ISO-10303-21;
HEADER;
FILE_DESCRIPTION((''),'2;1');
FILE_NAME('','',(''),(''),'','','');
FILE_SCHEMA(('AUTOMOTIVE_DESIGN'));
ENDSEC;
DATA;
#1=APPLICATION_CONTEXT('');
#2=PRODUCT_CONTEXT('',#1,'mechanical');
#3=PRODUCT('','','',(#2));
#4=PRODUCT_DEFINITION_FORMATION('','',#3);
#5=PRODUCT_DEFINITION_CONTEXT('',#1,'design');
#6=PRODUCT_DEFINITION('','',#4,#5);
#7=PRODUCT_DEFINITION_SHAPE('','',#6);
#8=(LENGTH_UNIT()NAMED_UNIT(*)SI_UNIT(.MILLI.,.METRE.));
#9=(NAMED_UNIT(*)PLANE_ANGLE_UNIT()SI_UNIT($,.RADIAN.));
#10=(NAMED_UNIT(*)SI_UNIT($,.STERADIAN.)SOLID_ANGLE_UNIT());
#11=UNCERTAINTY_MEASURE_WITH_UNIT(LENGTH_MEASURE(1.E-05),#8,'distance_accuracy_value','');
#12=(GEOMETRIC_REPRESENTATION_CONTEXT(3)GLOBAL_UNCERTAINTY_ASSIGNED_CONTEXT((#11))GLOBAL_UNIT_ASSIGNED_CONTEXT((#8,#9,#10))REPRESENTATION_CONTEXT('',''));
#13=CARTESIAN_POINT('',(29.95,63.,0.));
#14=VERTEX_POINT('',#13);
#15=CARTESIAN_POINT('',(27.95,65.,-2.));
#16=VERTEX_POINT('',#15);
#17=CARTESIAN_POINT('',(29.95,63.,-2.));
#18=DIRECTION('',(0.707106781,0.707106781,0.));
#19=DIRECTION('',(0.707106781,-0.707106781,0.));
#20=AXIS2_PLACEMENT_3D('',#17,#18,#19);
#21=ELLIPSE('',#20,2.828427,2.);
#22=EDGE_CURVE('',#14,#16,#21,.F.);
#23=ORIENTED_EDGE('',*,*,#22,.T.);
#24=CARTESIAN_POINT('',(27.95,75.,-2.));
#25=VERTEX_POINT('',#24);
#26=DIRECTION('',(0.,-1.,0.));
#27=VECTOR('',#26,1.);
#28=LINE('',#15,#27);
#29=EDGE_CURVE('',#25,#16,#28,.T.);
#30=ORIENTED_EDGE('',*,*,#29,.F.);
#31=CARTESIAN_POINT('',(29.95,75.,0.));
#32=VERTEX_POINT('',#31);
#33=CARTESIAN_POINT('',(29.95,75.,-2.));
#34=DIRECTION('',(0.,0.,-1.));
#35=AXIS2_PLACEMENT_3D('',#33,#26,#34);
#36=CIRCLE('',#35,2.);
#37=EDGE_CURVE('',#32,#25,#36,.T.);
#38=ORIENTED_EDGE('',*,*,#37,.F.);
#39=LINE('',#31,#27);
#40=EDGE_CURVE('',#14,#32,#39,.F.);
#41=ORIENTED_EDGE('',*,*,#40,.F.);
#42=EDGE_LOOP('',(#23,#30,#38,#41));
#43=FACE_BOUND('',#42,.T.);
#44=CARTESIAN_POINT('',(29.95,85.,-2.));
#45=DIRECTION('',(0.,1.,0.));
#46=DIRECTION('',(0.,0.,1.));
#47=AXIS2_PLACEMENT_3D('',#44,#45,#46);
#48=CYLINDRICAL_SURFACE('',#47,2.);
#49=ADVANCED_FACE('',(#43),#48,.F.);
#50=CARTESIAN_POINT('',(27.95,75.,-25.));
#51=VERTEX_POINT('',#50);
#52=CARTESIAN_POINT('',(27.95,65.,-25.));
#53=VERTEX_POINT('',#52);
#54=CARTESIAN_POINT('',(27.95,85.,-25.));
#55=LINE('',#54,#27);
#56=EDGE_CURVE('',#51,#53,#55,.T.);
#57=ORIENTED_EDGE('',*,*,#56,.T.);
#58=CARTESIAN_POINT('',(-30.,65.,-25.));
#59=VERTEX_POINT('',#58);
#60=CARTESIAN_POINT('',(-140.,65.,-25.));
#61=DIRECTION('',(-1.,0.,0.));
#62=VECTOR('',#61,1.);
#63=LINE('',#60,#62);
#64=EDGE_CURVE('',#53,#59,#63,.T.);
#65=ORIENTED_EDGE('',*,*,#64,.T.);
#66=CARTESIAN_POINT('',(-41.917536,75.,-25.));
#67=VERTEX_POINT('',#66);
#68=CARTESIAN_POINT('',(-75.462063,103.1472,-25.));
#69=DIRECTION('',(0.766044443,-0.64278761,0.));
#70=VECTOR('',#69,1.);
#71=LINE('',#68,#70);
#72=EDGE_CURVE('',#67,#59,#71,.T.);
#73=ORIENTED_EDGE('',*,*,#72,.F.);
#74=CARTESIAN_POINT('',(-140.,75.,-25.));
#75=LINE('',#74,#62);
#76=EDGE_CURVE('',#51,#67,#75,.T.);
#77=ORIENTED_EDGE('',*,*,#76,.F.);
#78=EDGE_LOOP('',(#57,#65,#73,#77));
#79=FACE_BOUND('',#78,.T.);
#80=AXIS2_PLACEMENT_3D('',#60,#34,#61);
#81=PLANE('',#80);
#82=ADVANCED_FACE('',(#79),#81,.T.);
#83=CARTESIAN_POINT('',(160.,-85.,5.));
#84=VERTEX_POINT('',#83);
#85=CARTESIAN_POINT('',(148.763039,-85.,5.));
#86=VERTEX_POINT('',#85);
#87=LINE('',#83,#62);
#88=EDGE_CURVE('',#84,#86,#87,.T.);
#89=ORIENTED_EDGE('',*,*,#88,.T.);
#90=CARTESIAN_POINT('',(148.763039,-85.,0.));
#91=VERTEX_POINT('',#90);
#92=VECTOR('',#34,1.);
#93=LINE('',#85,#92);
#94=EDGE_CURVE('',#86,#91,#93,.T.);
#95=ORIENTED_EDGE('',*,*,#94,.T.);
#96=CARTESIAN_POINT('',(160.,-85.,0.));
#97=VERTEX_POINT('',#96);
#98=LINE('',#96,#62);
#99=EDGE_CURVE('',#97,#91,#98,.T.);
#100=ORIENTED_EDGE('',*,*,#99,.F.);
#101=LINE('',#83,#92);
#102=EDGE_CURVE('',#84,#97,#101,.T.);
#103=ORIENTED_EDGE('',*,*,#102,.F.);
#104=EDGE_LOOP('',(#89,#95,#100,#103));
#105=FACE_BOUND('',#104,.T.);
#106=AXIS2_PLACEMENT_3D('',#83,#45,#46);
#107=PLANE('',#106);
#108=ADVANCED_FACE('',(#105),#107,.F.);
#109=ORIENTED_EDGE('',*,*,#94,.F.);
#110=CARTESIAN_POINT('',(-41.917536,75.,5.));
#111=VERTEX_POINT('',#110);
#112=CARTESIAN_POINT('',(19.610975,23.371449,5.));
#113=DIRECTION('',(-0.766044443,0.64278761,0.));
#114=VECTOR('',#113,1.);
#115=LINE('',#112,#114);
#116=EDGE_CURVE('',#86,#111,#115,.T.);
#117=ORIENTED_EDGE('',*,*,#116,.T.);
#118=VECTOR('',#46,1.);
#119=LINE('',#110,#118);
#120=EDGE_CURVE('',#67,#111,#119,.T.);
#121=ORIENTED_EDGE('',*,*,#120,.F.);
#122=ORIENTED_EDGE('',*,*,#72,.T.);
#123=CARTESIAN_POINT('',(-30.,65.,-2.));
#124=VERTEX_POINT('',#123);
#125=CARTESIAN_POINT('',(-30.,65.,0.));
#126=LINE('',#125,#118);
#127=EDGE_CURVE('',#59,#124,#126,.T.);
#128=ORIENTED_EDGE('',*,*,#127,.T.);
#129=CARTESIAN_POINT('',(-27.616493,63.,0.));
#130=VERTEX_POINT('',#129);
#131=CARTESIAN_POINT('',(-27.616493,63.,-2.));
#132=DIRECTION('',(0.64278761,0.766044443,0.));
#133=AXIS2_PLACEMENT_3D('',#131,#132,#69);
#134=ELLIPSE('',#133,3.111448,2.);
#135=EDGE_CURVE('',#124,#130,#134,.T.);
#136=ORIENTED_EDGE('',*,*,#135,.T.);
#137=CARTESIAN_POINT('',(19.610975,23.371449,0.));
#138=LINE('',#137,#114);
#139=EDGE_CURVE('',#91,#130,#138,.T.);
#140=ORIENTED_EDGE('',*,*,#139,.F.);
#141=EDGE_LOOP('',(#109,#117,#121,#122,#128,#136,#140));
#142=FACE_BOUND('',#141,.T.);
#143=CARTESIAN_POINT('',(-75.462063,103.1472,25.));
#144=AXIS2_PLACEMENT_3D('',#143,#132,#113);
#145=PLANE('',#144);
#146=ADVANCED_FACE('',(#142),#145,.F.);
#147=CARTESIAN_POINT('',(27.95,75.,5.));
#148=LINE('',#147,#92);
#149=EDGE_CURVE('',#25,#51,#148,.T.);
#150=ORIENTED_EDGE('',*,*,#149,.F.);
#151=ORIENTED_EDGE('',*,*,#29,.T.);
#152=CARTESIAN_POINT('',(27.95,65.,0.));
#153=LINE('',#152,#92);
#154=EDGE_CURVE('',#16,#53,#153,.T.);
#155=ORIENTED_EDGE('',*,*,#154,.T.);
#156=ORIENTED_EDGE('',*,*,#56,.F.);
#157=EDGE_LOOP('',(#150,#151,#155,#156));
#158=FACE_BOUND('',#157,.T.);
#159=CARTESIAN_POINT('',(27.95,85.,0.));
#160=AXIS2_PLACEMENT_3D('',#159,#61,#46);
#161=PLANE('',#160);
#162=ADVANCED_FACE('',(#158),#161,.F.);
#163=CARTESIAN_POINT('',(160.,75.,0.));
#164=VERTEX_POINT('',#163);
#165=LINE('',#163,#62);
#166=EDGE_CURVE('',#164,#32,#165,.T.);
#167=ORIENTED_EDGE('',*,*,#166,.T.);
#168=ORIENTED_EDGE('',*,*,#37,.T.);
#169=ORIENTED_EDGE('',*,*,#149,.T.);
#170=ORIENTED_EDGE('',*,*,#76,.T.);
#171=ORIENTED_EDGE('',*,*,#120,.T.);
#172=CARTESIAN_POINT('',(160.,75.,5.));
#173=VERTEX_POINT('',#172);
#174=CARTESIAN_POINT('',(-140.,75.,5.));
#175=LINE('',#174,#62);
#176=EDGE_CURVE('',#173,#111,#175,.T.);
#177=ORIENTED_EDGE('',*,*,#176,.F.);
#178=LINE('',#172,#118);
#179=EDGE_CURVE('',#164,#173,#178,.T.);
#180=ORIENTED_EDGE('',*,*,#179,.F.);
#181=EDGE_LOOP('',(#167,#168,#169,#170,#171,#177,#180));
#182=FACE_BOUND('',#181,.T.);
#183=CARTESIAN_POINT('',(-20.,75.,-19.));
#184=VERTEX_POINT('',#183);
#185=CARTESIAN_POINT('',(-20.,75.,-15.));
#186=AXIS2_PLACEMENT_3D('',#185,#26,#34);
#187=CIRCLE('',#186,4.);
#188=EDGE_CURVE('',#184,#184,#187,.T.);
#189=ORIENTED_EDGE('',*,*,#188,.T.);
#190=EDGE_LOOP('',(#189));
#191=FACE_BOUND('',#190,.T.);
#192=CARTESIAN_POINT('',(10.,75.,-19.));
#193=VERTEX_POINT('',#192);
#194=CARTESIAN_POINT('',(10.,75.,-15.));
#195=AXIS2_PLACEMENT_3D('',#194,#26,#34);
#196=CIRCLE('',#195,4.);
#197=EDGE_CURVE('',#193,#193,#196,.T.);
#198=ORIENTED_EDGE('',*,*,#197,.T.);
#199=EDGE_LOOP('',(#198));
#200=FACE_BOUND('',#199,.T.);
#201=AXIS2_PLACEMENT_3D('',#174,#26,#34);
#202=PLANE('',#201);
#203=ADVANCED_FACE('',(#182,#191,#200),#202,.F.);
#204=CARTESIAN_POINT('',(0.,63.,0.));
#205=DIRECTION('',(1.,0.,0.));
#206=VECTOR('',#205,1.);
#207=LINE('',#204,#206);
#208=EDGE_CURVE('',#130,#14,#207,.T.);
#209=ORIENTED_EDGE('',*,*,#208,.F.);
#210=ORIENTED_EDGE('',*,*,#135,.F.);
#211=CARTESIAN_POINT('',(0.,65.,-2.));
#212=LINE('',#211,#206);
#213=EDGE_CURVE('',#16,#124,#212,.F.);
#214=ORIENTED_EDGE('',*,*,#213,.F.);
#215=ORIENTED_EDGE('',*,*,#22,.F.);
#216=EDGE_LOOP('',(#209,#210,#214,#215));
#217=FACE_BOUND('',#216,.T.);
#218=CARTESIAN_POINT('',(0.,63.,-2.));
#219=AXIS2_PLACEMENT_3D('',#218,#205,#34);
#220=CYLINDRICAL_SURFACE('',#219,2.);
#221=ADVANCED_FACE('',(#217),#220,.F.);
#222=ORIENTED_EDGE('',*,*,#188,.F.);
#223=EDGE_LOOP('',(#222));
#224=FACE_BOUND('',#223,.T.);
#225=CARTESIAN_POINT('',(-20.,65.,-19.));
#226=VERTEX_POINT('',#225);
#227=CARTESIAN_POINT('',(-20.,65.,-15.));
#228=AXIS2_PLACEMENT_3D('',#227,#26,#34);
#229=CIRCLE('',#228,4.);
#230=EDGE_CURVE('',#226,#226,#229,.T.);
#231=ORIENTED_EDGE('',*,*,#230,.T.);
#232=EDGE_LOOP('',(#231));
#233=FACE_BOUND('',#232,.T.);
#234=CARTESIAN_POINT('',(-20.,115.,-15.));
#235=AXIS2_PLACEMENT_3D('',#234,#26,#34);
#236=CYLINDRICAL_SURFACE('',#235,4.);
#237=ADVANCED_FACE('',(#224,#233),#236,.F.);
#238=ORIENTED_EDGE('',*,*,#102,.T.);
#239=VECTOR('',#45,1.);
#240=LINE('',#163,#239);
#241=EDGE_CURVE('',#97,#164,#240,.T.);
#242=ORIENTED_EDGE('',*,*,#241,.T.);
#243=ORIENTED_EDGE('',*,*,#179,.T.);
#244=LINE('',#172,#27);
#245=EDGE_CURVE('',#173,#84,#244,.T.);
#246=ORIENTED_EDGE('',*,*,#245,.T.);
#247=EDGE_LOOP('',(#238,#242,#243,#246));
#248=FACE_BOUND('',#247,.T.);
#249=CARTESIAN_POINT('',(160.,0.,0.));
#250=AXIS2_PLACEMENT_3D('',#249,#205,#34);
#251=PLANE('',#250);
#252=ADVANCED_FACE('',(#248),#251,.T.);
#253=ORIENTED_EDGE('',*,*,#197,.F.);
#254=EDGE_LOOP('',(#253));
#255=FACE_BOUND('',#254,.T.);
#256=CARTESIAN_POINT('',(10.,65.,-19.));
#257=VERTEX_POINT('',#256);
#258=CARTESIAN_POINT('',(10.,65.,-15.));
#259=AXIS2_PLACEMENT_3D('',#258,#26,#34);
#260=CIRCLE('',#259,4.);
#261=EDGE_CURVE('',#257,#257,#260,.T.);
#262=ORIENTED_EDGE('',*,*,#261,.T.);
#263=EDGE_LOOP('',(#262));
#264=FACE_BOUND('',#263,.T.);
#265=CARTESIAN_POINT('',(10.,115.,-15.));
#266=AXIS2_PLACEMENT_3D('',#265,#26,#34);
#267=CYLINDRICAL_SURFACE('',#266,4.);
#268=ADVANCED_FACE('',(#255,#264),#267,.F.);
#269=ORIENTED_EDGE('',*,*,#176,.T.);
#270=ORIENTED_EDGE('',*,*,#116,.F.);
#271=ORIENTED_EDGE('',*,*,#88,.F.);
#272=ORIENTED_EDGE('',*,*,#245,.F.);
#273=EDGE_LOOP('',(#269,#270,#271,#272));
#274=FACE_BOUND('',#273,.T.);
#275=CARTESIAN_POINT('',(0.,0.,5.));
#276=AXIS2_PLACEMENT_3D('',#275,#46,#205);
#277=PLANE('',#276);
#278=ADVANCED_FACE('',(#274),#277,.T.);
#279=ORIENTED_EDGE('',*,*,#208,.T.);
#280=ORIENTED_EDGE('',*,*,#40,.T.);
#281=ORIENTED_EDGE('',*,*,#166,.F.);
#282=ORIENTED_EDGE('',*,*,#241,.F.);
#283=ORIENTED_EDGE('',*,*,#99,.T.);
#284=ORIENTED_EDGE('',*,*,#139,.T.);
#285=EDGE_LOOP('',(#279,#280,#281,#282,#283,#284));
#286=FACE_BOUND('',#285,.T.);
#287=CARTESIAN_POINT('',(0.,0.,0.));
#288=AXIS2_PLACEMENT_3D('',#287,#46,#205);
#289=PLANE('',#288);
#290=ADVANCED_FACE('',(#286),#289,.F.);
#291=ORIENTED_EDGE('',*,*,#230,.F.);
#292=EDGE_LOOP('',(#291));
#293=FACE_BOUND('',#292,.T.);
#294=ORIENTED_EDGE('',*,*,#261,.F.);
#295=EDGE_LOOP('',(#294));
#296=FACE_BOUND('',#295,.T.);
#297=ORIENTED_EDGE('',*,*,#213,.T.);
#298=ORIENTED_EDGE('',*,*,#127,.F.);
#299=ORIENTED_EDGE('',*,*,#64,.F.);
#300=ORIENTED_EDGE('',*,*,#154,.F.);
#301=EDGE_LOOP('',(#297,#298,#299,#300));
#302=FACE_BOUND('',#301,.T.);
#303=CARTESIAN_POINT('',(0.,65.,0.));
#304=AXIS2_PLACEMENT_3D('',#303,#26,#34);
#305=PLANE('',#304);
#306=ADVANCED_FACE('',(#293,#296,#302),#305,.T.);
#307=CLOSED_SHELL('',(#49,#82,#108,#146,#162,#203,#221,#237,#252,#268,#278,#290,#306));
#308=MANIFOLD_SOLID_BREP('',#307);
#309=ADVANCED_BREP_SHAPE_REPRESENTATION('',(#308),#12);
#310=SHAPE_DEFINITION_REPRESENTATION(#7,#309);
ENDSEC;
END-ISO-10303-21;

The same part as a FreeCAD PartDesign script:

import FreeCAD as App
import Part
import Sketcher
Q = App.Units.Quantity


def edges_at(feature, points):
    """Names of the edges that pass closest to the given points."""
    edges = feature.Shape.Edges
    near = lambda p: min(range(len(edges)), key=lambda i: edges[i].distToShape(Part.Vertex(*p))[0])
    return sorted({f"Edge{near(p) + 1}" for p in points})


def add_polygon(sketch, points):
    """Adds a closed chain of lines whose ends are joined by coincident constraints."""
    first, n = sketch.GeometryCount, len(points)
    for a, b in zip(points, points[1:] + points[:1]):
        sketch.addGeometry(Part.LineSegment(App.Vector(*a, 0), App.Vector(*b, 0)), False)
    for i in range(n):
        sketch.addConstraint(Sketcher.Constraint("Coincident", first + i, 2, first + (i + 1) % n, 1))

doc = App.newDocument("Part")
params = doc.addObject("Spreadsheet::Sheet", "Params")
for row, (alias, value) in enumerate([
    ("sketch1_width", "280 mm"),
    ("sketch1_height", "150 mm"),
    ("pad1_length", "5 mm"),
    ("sketch2_width", "280 mm"),
    ("sketch2_height", "25 mm"),
    ("pad2_length", "10 mm"),
    ("pocket1_length", "50 mm"),
    ("sketch4_diameter", "8 mm"),
    ("pocket2_length", "50 mm"),
    ("sketch5_width", "160 mm"),
    ("sketch5_height", "5 mm"),
    ("pad3_length", "20 mm"),
    ("pad4_length", "5 mm"),
    ("pocket3_length", "20 mm"),
    ("sketch8_height", "25 mm"),
    ("sketch8_width", "112.05 mm"),
    ("pocket4_length", "20 mm"),
    ("fillet_radius", "2 mm"),
], start=1):
    params.set(f"A{row}", alias)
    params.set(f"B{row}", "=" + value)
    params.setAlias(f"B{row}", alias)

body = doc.addObject("PartDesign::Body", "Body")

# Sketch on XY plane
sketch1 = body.newObject("Sketcher::SketchObject", "Sketch")
sketch1.AttachmentSupport = (doc.getObject("XY_Plane"), [""])
sketch1.MapMode = "FlatFace"
add_polygon(sketch1, [(-140, 75), (-140, -75), (140, -75), (140, 75)])  # lines 0-3
sketch1.addConstraint(Sketcher.Constraint("Vertical", 0))
sketch1.addConstraint(Sketcher.Constraint("Horizontal", 1))
sketch1.addConstraint(Sketcher.Constraint("Vertical", 2))
sketch1.addConstraint(Sketcher.Constraint("Horizontal", 3))
sketch1.addConstraint(Sketcher.Constraint("Symmetric", 0, 2, 2, 2, -1, 1))
sketch1.addConstraint(Sketcher.Constraint("DistanceX", 1, 1, 1, 2, Q("280 mm")))
sketch1.addConstraint(Sketcher.Constraint("DistanceY", 0, 2, 0, 1, Q("150 mm")))
sketch1.setExpression("Constraints[9]", "Params.sketch1_width")
sketch1.setExpression("Constraints[10]", "Params.sketch1_height")
pad1 = body.newObject("PartDesign::Pad", "Pad")
pad1.Profile = sketch1
pad1.setExpression("Length", "Params.pad1_length")

# Sketch on XZ plane
sketch2 = body.newObject("Sketcher::SketchObject", "Sketch001")
sketch2.AttachmentSupport = (doc.getObject("XZ_Plane"), [""])
sketch2.MapMode = "FlatFace"
sketch2.AttachmentOffset = App.Placement(App.Vector(0, 0, -75), App.Rotation())
add_polygon(sketch2, [(-140, -25), (-140, 0), (140, 0), (140, -25)])  # lines 0-3
sketch2.addConstraint(Sketcher.Constraint("Vertical", 0))
sketch2.addConstraint(Sketcher.Constraint("Horizontal", 1))
sketch2.addConstraint(Sketcher.Constraint("Vertical", 2))
sketch2.addConstraint(Sketcher.Constraint("Horizontal", 3))
sketch2.addConstraint(Sketcher.Constraint("Symmetric", 0, 2, 1, 2, -1, 1))
sketch2.addConstraint(Sketcher.Constraint("DistanceX", 1, 1, 1, 2, Q("280 mm")))
sketch2.addConstraint(Sketcher.Constraint("DistanceY", 0, 1, 0, 2, Q("25 mm")))
sketch2.setExpression("Constraints[9]", "Params.sketch2_width")
sketch2.setExpression("Constraints[10]", "Params.sketch2_height")
pad2 = body.newObject("PartDesign::Pad", "Pad001")
pad2.Profile = sketch2
pad2.setExpression("Length", "Params.pad2_length")

# Sketch on XY plane
sketch3 = body.newObject("Sketcher::SketchObject", "Sketch002")
sketch3.AttachmentSupport = (doc.getObject("XY_Plane"), [""])
sketch3.MapMode = "FlatFace"
add_polygon(sketch3, [(-75, 103), (172, -105), (-179, -109), (-160, 99)])  # lines 0-3
sketch3.addConstraint(Sketcher.Constraint("Angle", 0, Q("-40 deg")))
sketch3.addConstraint(Sketcher.Constraint("DistanceY", -1, 1, 3, 2, Q("103.1472 mm")))
sketch3.addConstraint(Sketcher.Constraint("Distance", 0, Q("323.049032 mm")))
sketch3.addConstraint(Sketcher.Constraint("DistanceX", 1, 2, -1, 1, Q("179.32828 mm")))
sketch3.addConstraint(Sketcher.Constraint("DistanceY", 1, 2, -1, 1, Q("108.521449 mm")))
sketch3.addConstraint(Sketcher.Constraint("DistanceY", 1, 2, 2, 2, Q("207.167762 mm")))
sketch3.addConstraint(Sketcher.Constraint("Distance", 1, Q("351.359093 mm")))
sketch3.addConstraint(Sketcher.Constraint("Distance", 2, Q("208.067615 mm")))
pocket1 = body.newObject("PartDesign::Pocket", "Pocket")
pocket1.Profile = sketch3
pocket1.setExpression("Length", "Params.pocket1_length")
pocket1.Midplane = True

# Sketch on XZ plane
sketch4 = body.newObject("Sketcher::SketchObject", "Sketch003")
sketch4.AttachmentSupport = (doc.getObject("XZ_Plane"), [""])
sketch4.MapMode = "FlatFace"
sketch4.AttachmentOffset = App.Placement(App.Vector(0, 0, -65), App.Rotation())
sketch4.addGeometry(Part.Circle(App.Vector(-20, -15, 0), App.Vector(0, 0, 1), 4), False)
sketch4.addGeometry(Part.Circle(App.Vector(10, -15, 0), App.Vector(0, 0, 1), 4), False)
sketch4.addConstraint(Sketcher.Constraint("Equal", 0, 1))
sketch4.addConstraint(Sketcher.Constraint("Horizontal", 0, 3, 1, 3))
sketch4.addConstraint(Sketcher.Constraint("Diameter", 0, Q("8 mm")))
sketch4.addConstraint(Sketcher.Constraint("DistanceX", 0, 3, -1, 1, Q("20 mm")))
sketch4.addConstraint(Sketcher.Constraint("DistanceY", 0, 3, -1, 1, Q("15 mm")))
sketch4.addConstraint(Sketcher.Constraint("DistanceX", -1, 1, 1, 3, Q("10 mm")))
sketch4.setExpression("Constraints[2]", "Params.sketch4_diameter")
pocket2 = body.newObject("PartDesign::Pocket", "Pocket001")
pocket2.Profile = sketch4
pocket2.setExpression("Length", "Params.pocket2_length")

# Sketch on YZ plane
sketch5 = body.newObject("Sketcher::SketchObject", "Sketch004")
sketch5.AttachmentSupport = (doc.getObject("YZ_Plane"), [""])
sketch5.MapMode = "FlatFace"
sketch5.AttachmentOffset = App.Placement(App.Vector(0, 0, 140), App.Rotation())
add_polygon(sketch5, [(75, 5), (-85, 5), (-85, 0), (75, 0)])  # lines 0-3
sketch5.addConstraint(Sketcher.Constraint("Horizontal", 0))
sketch5.addConstraint(Sketcher.Constraint("Vertical", 1))
sketch5.addConstraint(Sketcher.Constraint("Horizontal", 2))
sketch5.addConstraint(Sketcher.Constraint("Vertical", 3))
sketch5.addConstraint(Sketcher.Constraint("PointOnObject", 1, 2, -1))
sketch5.addConstraint(Sketcher.Constraint("DistanceX", 0, 2, 0, 1, Q("160 mm")))
sketch5.addConstraint(Sketcher.Constraint("DistanceY", 1, 2, 1, 1, Q("5 mm")))
sketch5.addConstraint(Sketcher.Constraint("DistanceX", 0, 2, -1, 1, Q("85 mm")))
sketch5.setExpression("Constraints[9]", "Params.sketch5_width")
sketch5.setExpression("Constraints[10]", "Params.sketch5_height")
pad3 = body.newObject("PartDesign::Pad", "Pad002")
pad3.Profile = sketch5
pad3.setExpression("Length", "Params.pad3_length")

# Sketch on XY plane
sketch6 = body.newObject("Sketcher::SketchObject", "Sketch005")
sketch6.AttachmentSupport = (doc.getObject("XY_Plane"), [""])
sketch6.MapMode = "FlatFace"
sketch6.AttachmentOffset = App.Placement(App.Vector(0, 0, 5), App.Rotation())
add_polygon(sketch6, [(136.8, -75), (140, -77.6), (140, -75)])  # lines 0-2
sketch6.addConstraint(Sketcher.Constraint("Vertical", 1))
sketch6.addConstraint(Sketcher.Constraint("Horizontal", 2))
sketch6.addConstraint(Sketcher.Constraint("Angle", 0, Q("-40 deg")))
sketch6.addConstraint(Sketcher.Constraint("DistanceX", -1, 1, 0, 2, Q("140 mm")))
sketch6.addConstraint(Sketcher.Constraint("DistanceY", 1, 2, -1, 1, Q("75 mm")))
sketch6.addConstraint(Sketcher.Constraint("DistanceX", 2, 2, 2, 1, Q("3.154497 mm")))
pad4 = body.newObject("PartDesign::Pad", "Pad003")
pad4.Profile = sketch6
pad4.setExpression("Length", "Params.pad4_length")
pad4.Reversed = True

# Sketch on XY plane
sketch7 = body.newObject("Sketcher::SketchObject", "Sketch006")
sketch7.AttachmentSupport = (doc.getObject("XY_Plane"), [""])
sketch7.MapMode = "FlatFace"
sketch7.AttachmentOffset = App.Placement(App.Vector(0, 0, 5), App.Rotation())
add_polygon(sketch7, [(154, -89), (140, -78), (130, -90)])  # lines 0-2
sketch7.addConstraint(Sketcher.Constraint("Perpendicular", 0, 1))
sketch7.addConstraint(Sketcher.Constraint("Angle", 0, Q("140 deg")))
sketch7.addConstraint(Sketcher.Constraint("DistanceX", -1, 1, 0, 2, Q("140 mm")))
sketch7.addConstraint(Sketcher.Constraint("Distance", 0, Q("18.088752 mm")))
sketch7.addConstraint(Sketcher.Constraint("Distance", 2, Q("24.14541 mm")))
sketch7.addConstraint(Sketcher.Constraint("DistanceY", 1, 2, -1, 1, Q("89.898809 mm")))
pocket3 = body.newObject("PartDesign::Pocket", "Pocket002")
pocket3.Profile = sketch7
pocket3.setExpression("Length", "Params.pocket3_length")

# Sketch on XZ plane
sketch8 = body.newObject("Sketcher::SketchObject", "Sketch007")
sketch8.AttachmentSupport = (doc.getObject("XZ_Plane"), [""])
sketch8.MapMode = "FlatFace"
sketch8.AttachmentOffset = App.Placement(App.Vector(0, 0, -65), App.Rotation())
add_polygon(sketch8, [(28, 0), (28, -25), (140, -25), (140, 0)])  # lines 0-3
sketch8.addConstraint(Sketcher.Constraint("Vertical", 0))
sketch8.addConstraint(Sketcher.Constraint("Horizontal", 1))
sketch8.addConstraint(Sketcher.Constraint("Vertical", 2))
sketch8.addConstraint(Sketcher.Constraint("Horizontal", 3))
sketch8.addConstraint(Sketcher.Constraint("PointOnObject", 2, 2, -1))
sketch8.addConstraint(Sketcher.Constraint("DistanceY", 0, 2, 0, 1, Q("25 mm")))
sketch8.addConstraint(Sketcher.Constraint("DistanceX", -1, 1, 1, 2, Q("140 mm")))
sketch8.addConstraint(Sketcher.Constraint("DistanceX", 1, 1, 1, 2, Q("112.05 mm")))
sketch8.setExpression("Constraints[9]", "Params.sketch8_height")
sketch8.setExpression("Constraints[11]", "Params.sketch8_width")
pocket4 = body.newObject("PartDesign::Pocket", "Pocket003")
pocket4.Profile = sketch8
pocket4.setExpression("Length", "Params.pocket4_length")
doc.recompute()

fillet = body.newObject("PartDesign::Fillet", "Fillet")
fillet.Base = (pocket4, edges_at(pocket4, [(27.95, 70, 0), (-1.025, 65, 0)]))
fillet.setExpression("Radius", "Params.fillet_radius")

doc.recompute()
